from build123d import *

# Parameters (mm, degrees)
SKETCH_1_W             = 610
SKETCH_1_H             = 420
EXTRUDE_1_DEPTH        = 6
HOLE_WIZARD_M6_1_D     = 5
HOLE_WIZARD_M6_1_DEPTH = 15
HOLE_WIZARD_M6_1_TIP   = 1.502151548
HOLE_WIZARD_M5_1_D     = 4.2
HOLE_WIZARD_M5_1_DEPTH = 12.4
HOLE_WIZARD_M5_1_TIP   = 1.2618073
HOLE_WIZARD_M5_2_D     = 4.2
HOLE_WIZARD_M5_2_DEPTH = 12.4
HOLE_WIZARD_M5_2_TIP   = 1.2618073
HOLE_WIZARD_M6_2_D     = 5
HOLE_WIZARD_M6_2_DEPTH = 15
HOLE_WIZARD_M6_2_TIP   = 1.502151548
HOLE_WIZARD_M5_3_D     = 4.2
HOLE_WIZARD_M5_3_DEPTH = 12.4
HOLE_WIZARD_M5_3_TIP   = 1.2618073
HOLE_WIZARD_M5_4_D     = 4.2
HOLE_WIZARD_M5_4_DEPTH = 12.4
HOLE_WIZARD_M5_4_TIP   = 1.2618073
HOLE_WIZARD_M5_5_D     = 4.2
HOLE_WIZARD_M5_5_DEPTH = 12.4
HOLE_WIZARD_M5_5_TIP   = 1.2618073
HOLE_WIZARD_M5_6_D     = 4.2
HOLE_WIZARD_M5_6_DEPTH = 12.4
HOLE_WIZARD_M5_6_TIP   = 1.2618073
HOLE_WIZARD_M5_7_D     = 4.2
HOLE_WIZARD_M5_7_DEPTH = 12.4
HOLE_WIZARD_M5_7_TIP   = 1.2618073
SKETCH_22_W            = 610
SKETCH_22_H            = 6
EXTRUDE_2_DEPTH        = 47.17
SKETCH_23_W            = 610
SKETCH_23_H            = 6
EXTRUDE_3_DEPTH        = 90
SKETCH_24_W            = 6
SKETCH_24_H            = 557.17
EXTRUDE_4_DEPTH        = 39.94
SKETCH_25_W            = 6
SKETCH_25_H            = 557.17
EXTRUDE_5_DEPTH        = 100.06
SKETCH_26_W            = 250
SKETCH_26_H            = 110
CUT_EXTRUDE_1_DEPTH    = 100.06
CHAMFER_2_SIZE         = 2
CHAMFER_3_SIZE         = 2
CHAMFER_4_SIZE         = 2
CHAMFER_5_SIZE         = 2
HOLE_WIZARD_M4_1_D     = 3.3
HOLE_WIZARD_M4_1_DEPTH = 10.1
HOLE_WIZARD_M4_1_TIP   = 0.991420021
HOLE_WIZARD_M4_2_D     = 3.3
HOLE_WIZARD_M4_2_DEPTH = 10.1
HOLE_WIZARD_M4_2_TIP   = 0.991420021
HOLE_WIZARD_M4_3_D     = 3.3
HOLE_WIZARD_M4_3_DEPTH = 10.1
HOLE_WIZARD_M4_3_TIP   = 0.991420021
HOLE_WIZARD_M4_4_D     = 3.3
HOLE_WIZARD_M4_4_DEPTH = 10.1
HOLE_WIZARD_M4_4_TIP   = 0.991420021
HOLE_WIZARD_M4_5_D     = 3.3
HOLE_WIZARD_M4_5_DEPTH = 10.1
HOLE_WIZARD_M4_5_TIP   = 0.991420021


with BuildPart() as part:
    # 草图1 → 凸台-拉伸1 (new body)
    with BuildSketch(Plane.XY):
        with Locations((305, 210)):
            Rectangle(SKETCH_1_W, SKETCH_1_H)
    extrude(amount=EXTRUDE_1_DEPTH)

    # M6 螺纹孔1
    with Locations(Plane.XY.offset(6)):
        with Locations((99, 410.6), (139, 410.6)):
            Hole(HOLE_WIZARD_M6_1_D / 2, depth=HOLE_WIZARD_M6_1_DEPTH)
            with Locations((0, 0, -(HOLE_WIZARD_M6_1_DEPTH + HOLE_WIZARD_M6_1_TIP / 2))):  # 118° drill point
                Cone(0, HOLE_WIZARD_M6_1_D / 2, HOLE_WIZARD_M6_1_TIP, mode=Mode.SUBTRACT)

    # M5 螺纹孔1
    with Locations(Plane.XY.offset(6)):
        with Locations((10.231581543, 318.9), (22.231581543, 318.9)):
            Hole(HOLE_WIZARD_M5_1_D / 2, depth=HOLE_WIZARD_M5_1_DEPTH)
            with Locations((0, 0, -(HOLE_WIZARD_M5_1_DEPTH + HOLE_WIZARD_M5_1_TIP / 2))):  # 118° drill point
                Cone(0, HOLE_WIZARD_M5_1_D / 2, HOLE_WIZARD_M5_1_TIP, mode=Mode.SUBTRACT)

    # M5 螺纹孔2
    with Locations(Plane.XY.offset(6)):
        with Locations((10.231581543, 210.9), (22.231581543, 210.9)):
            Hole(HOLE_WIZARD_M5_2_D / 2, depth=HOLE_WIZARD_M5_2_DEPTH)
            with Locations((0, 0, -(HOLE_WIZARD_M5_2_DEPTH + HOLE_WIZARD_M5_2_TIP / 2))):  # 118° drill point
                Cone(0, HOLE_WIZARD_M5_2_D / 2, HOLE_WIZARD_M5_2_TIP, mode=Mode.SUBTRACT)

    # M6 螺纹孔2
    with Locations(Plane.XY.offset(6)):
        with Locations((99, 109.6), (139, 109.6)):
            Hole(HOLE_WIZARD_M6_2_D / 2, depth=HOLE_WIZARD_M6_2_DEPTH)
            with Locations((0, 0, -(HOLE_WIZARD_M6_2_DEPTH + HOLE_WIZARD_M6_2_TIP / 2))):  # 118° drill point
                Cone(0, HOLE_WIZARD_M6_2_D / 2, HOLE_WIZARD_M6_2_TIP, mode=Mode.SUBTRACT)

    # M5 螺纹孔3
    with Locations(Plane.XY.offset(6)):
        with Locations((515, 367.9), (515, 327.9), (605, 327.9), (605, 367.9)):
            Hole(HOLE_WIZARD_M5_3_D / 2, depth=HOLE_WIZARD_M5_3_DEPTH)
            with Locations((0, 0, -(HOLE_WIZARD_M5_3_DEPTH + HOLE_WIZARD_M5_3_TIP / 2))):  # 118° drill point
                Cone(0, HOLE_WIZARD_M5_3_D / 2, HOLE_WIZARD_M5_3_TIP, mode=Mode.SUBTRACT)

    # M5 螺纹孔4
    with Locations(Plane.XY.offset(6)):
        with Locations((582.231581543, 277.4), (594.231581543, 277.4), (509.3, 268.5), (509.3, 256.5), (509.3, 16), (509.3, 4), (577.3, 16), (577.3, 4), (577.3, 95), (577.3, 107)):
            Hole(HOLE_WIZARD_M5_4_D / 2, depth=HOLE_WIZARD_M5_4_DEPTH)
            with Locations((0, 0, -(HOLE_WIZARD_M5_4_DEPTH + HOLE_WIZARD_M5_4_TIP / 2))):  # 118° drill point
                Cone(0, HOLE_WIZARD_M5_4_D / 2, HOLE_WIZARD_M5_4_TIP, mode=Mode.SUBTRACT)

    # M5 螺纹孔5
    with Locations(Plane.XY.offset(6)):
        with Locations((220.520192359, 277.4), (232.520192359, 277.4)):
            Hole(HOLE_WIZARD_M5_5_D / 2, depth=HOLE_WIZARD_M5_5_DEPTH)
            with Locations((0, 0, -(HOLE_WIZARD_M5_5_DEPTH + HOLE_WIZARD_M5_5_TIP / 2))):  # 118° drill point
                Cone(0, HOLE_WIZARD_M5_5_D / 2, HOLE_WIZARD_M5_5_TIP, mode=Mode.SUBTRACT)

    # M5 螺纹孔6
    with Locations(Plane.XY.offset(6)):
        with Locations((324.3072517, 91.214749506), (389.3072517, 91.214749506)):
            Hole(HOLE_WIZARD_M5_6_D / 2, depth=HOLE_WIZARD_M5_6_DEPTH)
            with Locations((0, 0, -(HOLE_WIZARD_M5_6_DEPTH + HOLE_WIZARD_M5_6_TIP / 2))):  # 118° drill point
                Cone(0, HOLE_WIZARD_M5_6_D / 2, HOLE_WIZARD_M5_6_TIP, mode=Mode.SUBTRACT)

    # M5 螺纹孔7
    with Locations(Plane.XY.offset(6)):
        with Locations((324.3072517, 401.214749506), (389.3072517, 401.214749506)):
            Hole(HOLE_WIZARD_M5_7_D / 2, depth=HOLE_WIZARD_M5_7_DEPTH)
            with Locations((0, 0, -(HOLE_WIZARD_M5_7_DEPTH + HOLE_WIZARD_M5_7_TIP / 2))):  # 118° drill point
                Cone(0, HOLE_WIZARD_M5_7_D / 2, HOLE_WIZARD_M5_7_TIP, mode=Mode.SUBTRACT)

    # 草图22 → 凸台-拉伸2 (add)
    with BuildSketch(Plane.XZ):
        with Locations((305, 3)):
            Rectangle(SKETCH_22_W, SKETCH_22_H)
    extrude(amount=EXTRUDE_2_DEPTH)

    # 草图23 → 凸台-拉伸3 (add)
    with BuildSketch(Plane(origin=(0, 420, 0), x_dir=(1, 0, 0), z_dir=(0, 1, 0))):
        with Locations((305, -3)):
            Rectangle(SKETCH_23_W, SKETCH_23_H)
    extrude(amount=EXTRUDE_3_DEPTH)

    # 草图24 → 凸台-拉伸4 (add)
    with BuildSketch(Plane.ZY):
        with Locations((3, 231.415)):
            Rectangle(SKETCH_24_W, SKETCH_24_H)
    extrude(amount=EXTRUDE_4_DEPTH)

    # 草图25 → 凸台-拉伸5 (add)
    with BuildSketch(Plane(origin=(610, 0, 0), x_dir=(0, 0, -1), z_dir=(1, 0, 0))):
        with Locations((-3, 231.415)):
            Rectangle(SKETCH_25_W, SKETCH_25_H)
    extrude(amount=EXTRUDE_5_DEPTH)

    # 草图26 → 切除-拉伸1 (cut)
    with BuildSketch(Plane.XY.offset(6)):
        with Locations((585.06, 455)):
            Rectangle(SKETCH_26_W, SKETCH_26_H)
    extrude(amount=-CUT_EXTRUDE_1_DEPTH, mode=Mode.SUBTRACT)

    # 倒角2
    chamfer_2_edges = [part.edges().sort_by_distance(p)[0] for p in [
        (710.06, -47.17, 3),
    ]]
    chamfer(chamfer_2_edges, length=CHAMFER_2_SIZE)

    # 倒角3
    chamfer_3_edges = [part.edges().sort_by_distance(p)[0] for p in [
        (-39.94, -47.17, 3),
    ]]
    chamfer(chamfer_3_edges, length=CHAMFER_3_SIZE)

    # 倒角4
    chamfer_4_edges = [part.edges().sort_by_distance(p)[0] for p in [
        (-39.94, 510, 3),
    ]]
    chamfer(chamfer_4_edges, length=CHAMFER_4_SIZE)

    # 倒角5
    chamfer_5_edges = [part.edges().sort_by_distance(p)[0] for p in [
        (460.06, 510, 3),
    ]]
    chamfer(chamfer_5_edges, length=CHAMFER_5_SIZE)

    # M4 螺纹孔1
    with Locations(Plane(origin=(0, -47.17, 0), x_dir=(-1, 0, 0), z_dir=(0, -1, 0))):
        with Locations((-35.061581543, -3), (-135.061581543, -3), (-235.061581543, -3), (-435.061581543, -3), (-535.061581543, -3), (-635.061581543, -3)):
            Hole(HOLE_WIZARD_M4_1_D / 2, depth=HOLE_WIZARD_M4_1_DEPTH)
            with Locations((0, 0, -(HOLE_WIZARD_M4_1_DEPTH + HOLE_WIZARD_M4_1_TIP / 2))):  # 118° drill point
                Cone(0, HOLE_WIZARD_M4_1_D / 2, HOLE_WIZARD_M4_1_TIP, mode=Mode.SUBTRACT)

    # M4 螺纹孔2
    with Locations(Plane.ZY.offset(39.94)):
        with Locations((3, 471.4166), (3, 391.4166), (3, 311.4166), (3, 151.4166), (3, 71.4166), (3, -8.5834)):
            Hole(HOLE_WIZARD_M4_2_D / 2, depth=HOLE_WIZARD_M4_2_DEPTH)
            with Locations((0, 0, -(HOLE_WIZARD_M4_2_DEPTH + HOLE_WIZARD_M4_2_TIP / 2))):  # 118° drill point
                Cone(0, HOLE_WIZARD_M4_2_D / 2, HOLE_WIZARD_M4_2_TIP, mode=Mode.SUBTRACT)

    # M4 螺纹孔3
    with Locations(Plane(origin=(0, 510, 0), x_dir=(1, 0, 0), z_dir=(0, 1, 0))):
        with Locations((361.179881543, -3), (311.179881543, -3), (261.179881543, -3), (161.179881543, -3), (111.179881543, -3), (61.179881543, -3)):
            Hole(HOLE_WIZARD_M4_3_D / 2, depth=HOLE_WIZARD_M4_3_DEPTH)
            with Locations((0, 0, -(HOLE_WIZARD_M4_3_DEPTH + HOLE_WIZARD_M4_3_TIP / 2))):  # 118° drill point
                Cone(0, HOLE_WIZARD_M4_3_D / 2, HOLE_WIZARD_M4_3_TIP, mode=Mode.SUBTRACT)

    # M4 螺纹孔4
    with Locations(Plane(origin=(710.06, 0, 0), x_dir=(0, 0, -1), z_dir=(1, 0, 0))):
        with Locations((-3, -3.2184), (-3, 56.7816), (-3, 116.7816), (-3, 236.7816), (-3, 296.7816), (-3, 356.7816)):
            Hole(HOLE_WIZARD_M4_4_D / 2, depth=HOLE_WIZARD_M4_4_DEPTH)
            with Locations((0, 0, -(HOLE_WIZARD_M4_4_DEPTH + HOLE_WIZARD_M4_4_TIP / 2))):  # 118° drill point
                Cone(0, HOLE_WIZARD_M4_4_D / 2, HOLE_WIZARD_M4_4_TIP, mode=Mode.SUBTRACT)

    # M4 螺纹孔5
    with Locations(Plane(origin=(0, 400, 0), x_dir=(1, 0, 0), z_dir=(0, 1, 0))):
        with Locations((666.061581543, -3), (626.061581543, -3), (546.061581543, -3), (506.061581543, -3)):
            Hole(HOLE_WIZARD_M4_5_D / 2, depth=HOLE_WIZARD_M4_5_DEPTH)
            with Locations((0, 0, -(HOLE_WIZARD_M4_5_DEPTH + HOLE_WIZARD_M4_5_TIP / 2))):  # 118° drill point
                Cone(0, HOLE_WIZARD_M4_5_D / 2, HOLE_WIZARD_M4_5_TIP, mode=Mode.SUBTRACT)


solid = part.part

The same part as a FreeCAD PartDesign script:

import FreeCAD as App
import Part
import Sketcher

V = App.Vector
Q = App.Units.Quantity


def edges_at(feature, points):
    """Names of the edges that pass closest to the given points."""
    edges = feature.Shape.Edges
    near = lambda p: min(range(len(edges)), key=lambda i: edges[i].distToShape(Part.Vertex(*p))[0])
    return sorted({f"Edge{near(p) + 1}" for p in points})

doc = App.newDocument("Part")
params = doc.addObject("Spreadsheet::Sheet", "Params")
for row, (alias, value) in enumerate([
    ("sketch1_width", "610 mm"),
    ("sketch1_height", "420 mm"),
    ("pad1_length", "6 mm"),
    ("sketch2_diameter", "5 mm"),
    ("hole_diameter", "5 mm"),
    ("hole_depth", "15 mm"),
    ("sketch3_diameter", "4.2 mm"),
    ("hole2_diameter", "4.2 mm"),
    ("hole2_depth", "12.4 mm"),
    ("sketch4_diameter", "4.2 mm"),
    ("hole3_diameter", "4.2 mm"),
    ("hole3_depth", "12.4 mm"),
    ("sketch5_diameter", "5 mm"),
    ("hole4_diameter", "5 mm"),
    ("hole4_depth", "15 mm"),
    ("sketch6_diameter", "4.2 mm"),
    ("hole5_diameter", "4.2 mm"),
    ("hole5_depth", "12.4 mm"),
    ("sketch7_diameter", "4.2 mm"),
    ("hole6_diameter", "4.2 mm"),
    ("hole6_depth", "12.4 mm"),
    ("sketch8_diameter", "4.2 mm"),
    ("hole7_diameter", "4.2 mm"),
    ("hole7_depth", "12.4 mm"),
    ("sketch9_diameter", "4.2 mm"),
    ("hole8_diameter", "4.2 mm"),
    ("hole8_depth", "12.4 mm"),
    ("sketch10_diameter", "4.2 mm"),
    ("hole9_diameter", "4.2 mm"),
    ("hole9_depth", "12.4 mm"),
    ("sketch11_width", "610 mm"),
    ("sketch11_height", "6 mm"),
    ("pad2_length", "47.17 mm"),
    ("sketch12_width", "610 mm"),
    ("sketch12_height", "6 mm"),
    ("pad3_length", "90 mm"),
    ("sketch13_height", "6 mm"),
    ("sketch13_width", "557.17 mm"),
    ("pad4_length", "39.94 mm"),
    ("sketch14_height", "6 mm"),
    ("sketch14_width", "557.17 mm"),
    ("pad5_length", "100.06 mm"),
    ("sketch15_width", "250 mm"),
    ("sketch15_height", "110 mm"),
    ("pocket1_length", "100.06 mm"),
    ("chamfer_size", "2 mm"),
    ("chamfer2_size", "2 mm"),
    ("chamfer3_size", "2 mm"),
    ("chamfer4_size", "2 mm"),
    ("sketch16_diameter", "3.3 mm"),
    ("hole10_diameter", "3.3 mm"),
    ("hole10_depth", "10.1 mm"),
    ("sketch17_diameter", "3.3 mm"),
    ("hole11_diameter", "3.3 mm"),
    ("hole11_depth", "10.1 mm"),
    ("sketch18_diameter", "3.3 mm"),
    ("hole12_diameter", "3.3 mm"),
    ("hole12_depth", "10.1 mm"),
    ("sketch19_diameter", "3.3 mm"),
    ("hole13_diameter", "3.3 mm"),
    ("hole13_depth", "10.1 mm"),
    ("sketch20_diameter", "3.3 mm"),
    ("hole14_diameter", "3.3 mm"),
    ("hole14_depth", "10.1 mm"),
], start=1):
    params.set(f"A{row}", alias)
    params.set(f"B{row}", "=" + value)
    params.setAlias(f"B{row}", alias)

body = doc.addObject("PartDesign::Body", "Body")

# Sketch on XY plane
sketch1 = body.newObject("Sketcher::SketchObject", "Sketch")
sketch1.AttachmentSupport = (doc.getObject("XY_Plane"), [""])
sketch1.MapMode = "FlatFace"
sketch1.addGeometry([
    Part.LineSegment(V(0, 420, 0), V(0, 0, 0)),
    Part.LineSegment(V(0, 0, 0), V(610, 0, 0)),
    Part.LineSegment(V(610, 0, 0), V(610, 420, 0)),
    Part.LineSegment(V(610, 420, 0), V(0, 420, 0)),
], False)
sketch1.addConstraint([
    Sketcher.Constraint("Coincident", 0, 2, 1, 1),
    Sketcher.Constraint("Coincident", 1, 2, 2, 1),
    Sketcher.Constraint("Coincident", 2, 2, 3, 1),
    Sketcher.Constraint("Coincident", 3, 2, 0, 1),
    Sketcher.Constraint("Vertical", 0),
    Sketcher.Constraint("Horizontal", 1),
    Sketcher.Constraint("Vertical", 2),
    Sketcher.Constraint("Horizontal", 3),
    Sketcher.Constraint("Coincident", 0, 2, -1, 1),
    Sketcher.Constraint("DistanceX", 1, 1, 1, 2, Q("610 mm")),
    Sketcher.Constraint("DistanceY", 0, 2, 0, 1, Q("420 mm")),
])
sketch1.setExpression("Constraints[9]", "Params.sketch1_width")
sketch1.setExpression("Constraints[10]", "Params.sketch1_height")
pad1 = body.newObject("PartDesign::Pad", "Pad")
pad1.Profile = sketch1
pad1.setExpression("Length", "Params.pad1_length")

# Sketch on XY plane
sketch2 = body.newObject("Sketcher::SketchObject", "Sketch001")
sketch2.AttachmentSupport = (doc.getObject("XY_Plane"), [""])
sketch2.MapMode = "FlatFace"
sketch2.AttachmentOffset = App.Placement(V(0, 0, 6), App.Rotation())
sketch2.addGeometry([
    Part.Circle(V(99, 410.6, 0), V(0, 0, 1), 2.5),
    Part.Circle(V(139, 410.6, 0), V(0, 0, 1), 2.5),
], False)
sketch2.addConstraint([
    Sketcher.Constraint("Equal", 0, 1),
    Sketcher.Constraint("Horizontal", 0, 3, 1, 3),
    Sketcher.Constraint("Diameter", 0, Q("5 mm")),
    Sketcher.Constraint("DistanceX", -1, 1, 0, 3, Q("99 mm")),
    Sketcher.Constraint("DistanceX", -1, 1, 1, 3, Q("139 mm")),
    Sketcher.Constraint("DistanceY", -1, 1, 0, 3, Q("410.6 mm")),
])
sketch2.setExpression("Constraints[2]", "Params.sketch2_diameter")
doc.recompute()
hole = body.newObject("PartDesign::Hole", "Hole")
hole.Profile = sketch2
hole.ThreadType = "None"
hole.setExpression("Diameter", "Params.hole_diameter")
hole.DepthType = "Dimension"
hole.setExpression("Depth", "Params.hole_depth")
hole.DrillPoint = "Angled"
hole.DrillPointAngle = 118

# Sketch on XY plane
sketch3 = body.newObject("Sketcher::SketchObject", "Sketch002")
sketch3.AttachmentSupport = (doc.getObject("XY_Plane"), [""])
sketch3.MapMode = "FlatFace"
sketch3.AttachmentOffset = App.Placement(V(0, 0, 6), App.Rotation())
sketch3.addGeometry([
    Part.Circle(V(10.2, 318.9, 0), V(0, 0, 1), 2.1),
    Part.Circle(V(22.2, 318.9, 0), V(0, 0, 1), 2.1),
], False)
sketch3.addConstraint([
    Sketcher.Constraint("Equal", 0, 1),
    Sketcher.Constraint("Horizontal", 0, 3, 1, 3),
    Sketcher.Constraint("Diameter", 0, Q("4.2 mm")),
    Sketcher.Constraint("DistanceX", 0, 3, 1, 3, Q("12 mm")),
    Sketcher.Constraint("DistanceY", -1, 1, 0, 3, Q("318.9 mm")),
    Sketcher.Constraint("DistanceX", -1, 1, 0, 3, Q("10.231582 mm")),
])
sketch3.setExpression("Constraints[2]", "Params.sketch3_diameter")
doc.recompute()
hole2 = body.newObject("PartDesign::Hole", "Hole001")
hole2.Profile = sketch3
hole2.ThreadType = "None"
hole2.setExpression("Diameter", "Params.hole2_diameter")
hole2.DepthType = "Dimension"
hole2.setExpression("Depth", "Params.hole2_depth")
hole2.DrillPoint = "Angled"
hole2.DrillPointAngle = 118

# Sketch on XY plane
sketch4 = body.newObject("Sketcher::SketchObject", "Sketch003")
sketch4.AttachmentSupport = (doc.getObject("XY_Plane"), [""])
sketch4.MapMode = "FlatFace"
sketch4.AttachmentOffset = App.Placement(V(0, 0, 6), App.Rotation())
sketch4.addGeometry([
    Part.Circle(V(10.2, 210.9, 0), V(0, 0, 1), 2.1),
    Part.Circle(V(22.2, 210.9, 0), V(0, 0, 1), 2.1),
], False)
sketch4.addConstraint([
    Sketcher.Constraint("Equal", 0, 1),
    Sketcher.Constraint("Horizontal", 0, 3, 1, 3),
    Sketcher.Constraint("Diameter", 0, Q("4.2 mm")),
    Sketcher.Constraint("DistanceX", 0, 3, 1, 3, Q("12 mm")),
    Sketcher.Constraint("DistanceY", -1, 1, 0, 3, Q("210.9 mm")),
    Sketcher.Constraint("DistanceX", -1, 1, 0, 3, Q("10.231582 mm")),
])
sketch4.setExpression("Constraints[2]", "Params.sketch4_diameter")
doc.recompute()
hole3 = body.newObject("PartDesign::Hole", "Hole002")
hole3.Profile = sketch4
hole3.ThreadType = "None"
hole3.setExpression("Diameter", "Params.hole3_diameter")
hole3.DepthType = "Dimension"
hole3.setExpression("Depth", "Params.hole3_depth")
hole3.DrillPoint = "Angled"
hole3.DrillPointAngle = 118

# Sketch on XY plane
sketch5 = body.newObject("Sketcher::SketchObject", "Sketch004")
sketch5.AttachmentSupport = (doc.getObject("XY_Plane"), [""])
sketch5.MapMode = "FlatFace"
sketch5.AttachmentOffset = App.Placement(V(0, 0, 6), App.Rotation())
sketch5.addGeometry([
    Part.Circle(V(99, 109.6, 0), V(0, 0, 1), 2.5),
    Part.Circle(V(139, 109.6, 0), V(0, 0, 1), 2.5),
], False)
sketch5.addConstraint([
    Sketcher.Constraint("Equal", 0, 1),
    Sketcher.Constraint("Horizontal", 0, 3, 1, 3),
    Sketcher.Constraint("Diameter", 0, Q("5 mm")),
    Sketcher.Constraint("DistanceX", -1, 1, 0, 3, Q("99 mm")),
    Sketcher.Constraint("DistanceX", -1, 1, 1, 3, Q("139 mm")),
    Sketcher.Constraint("DistanceY", -1, 1, 0, 3, Q("109.6 mm")),
])
sketch5.setExpression("Constraints[2]", "Params.sketch5_diameter")
doc.recompute()
hole4 = body.newObject("PartDesign::Hole", "Hole003")
hole4.Profile = sketch5
hole4.ThreadType = "None"
hole4.setExpression("Diameter", "Params.hole4_diameter")
hole4.DepthType = "Dimension"
hole4.setExpression("Depth", "Params.hole4_depth")
hole4.DrillPoint = "Angled"
hole4.DrillPointAngle = 118

# Sketch on XY plane
sketch6 = body.newObject("Sketcher::SketchObject", "Sketch005")
sketch6.AttachmentSupport = (doc.getObject("XY_Plane"), [""])
sketch6.MapMode = "FlatFace"
sketch6.AttachmentOffset = App.Placement(V(0, 0, 6), App.Rotation())
sketch6.addGeometry([
    Part.Circle(V(515, 367.9, 0), V(0, 0, 1), 2.1),
    Part.Circle(V(515, 327.9, 0), V(0, 0, 1), 2.1),
    Part.Circle(V(605, 327.9, 0), V(0, 0, 1), 2.1),
    Part.Circle(V(605, 367.9, 0), V(0, 0, 1), 2.1),
], False)
sketch6.addConstraint([
    Sketcher.Constraint("Equal", 0, 1),
    Sketcher.Constraint("Equal", 1, 2),
    Sketcher.Constraint("Equal", 2, 3),
    Sketcher.Constraint("Horizontal", 1, 3, 2, 3),
    Sketcher.Constraint("Horizontal", 0, 3, 3, 3),
    Sketcher.Constraint("Vertical", 0, 3, 1, 3),
    Sketcher.Constraint("Vertical", 2, 3, 3, 3),
    Sketcher.Constraint("Diameter", 0, Q("4.2 mm")),
    Sketcher.Constraint("DistanceX", -1, 1, 0, 3, Q("515 mm")),
    Sketcher.Constraint("DistanceX", -1, 1, 2, 3, Q("605 mm")),
    Sketcher.Constraint("DistanceY", 1, 3, 0, 3, Q("40 mm")),
    Sketcher.Constraint("DistanceY", -1, 1, 0, 3, Q("367.9 mm")),
])
sketch6.setExpression("Constraints[7]", "Params.sketch6_diameter")
doc.recompute()
hole5 = body.newObject("PartDesign::Hole", "Hole004")
hole5.Profile = sketch6
hole5.ThreadType = "None"
hole5.setExpression("Diameter", "Params.hole5_diameter")
hole5.DepthType = "Dimension"
hole5.setExpression("Depth", "Params.hole5_depth")
hole5.DrillPoint = "Angled"
hole5.DrillPointAngle = 118

# Sketch on XY plane
sketch7 = body.newObject("Sketcher::SketchObject", "Sketch006")
sketch7.AttachmentSupport = (doc.getObject("XY_Plane"), [""])
sketch7.MapMode = "FlatFace"
sketch7.AttachmentOffset = App.Placement(V(0, 0, 6), App.Rotation())
sketch7.addGeometry([
    Part.Circle(V(582.2, 277.4, 0), V(0, 0, 1), 2.1),  # 0
    Part.Circle(V(594.2, 277.4, 0), V(0, 0, 1), 2.1),  # 1
    Part.Circle(V(509.3, 268.5, 0), V(0, 0, 1), 2.1),  # 2
    Part.Circle(V(509.3, 256.5, 0), V(0, 0, 1), 2.1),  # 3
    Part.Circle(V(509.3, 16, 0), V(0, 0, 1), 2.1),  # 4
    Part.Circle(V(509.3, 4, 0), V(0, 0, 1), 2.1),  # 5
    Part.Circle(V(577.3, 16, 0), V(0, 0, 1), 2.1),  # 6
    Part.Circle(V(577.3, 4, 0), V(0, 0, 1), 2.1),  # 7
    Part.Circle(V(577.3, 95, 0), V(0, 0, 1), 2.1),  # 8
    Part.Circle(V(577.3, 107, 0), V(0, 0, 1), 2.1),  # 9
], False)
sketch7.addConstraint([
    Sketcher.Constraint("Equal", 0, 1),
    Sketcher.Constraint("Equal", 1, 2),
    Sketcher.Constraint("Equal", 2, 3),
    Sketcher.Constraint("Equal", 3, 4),
    Sketcher.Constraint("Equal", 4, 5),
    Sketcher.Constraint("Equal", 5, 6),
    Sketcher.Constraint("Equal", 6, 7),
    Sketcher.Constraint("Equal", 7, 8),
    Sketcher.Constraint("Equal", 8, 9),
    Sketcher.Constraint("Horizontal", 0, 3, 1, 3),
    Sketcher.Constraint("Horizontal", 4, 3, 6, 3),
    Sketcher.Constraint("Horizontal", 5, 3, 7, 3),
    Sketcher.Constraint("Vertical", 2, 3, 3, 3),
    Sketcher.Constraint("Vertical", 3, 3, 4, 3),
    Sketcher.Constraint("Vertical", 4, 3, 5, 3),
    Sketcher.Constraint("Vertical", 6, 3, 7, 3),
    Sketcher.Constraint("Vertical", 7, 3, 8, 3),
    Sketcher.Constraint("Vertical", 8, 3, 9, 3),
    Sketcher.Constraint("Diameter", 0, Q("4.2 mm")),
    Sketcher.Constraint("DistanceY", -1, 1, 4, 3, Q("16 mm")),
    Sketcher.Constraint("DistanceY", -1, 1, 5, 3, Q("4 mm")),
    Sketcher.Constraint("DistanceY", -1, 1, 8, 3, Q("95 mm")),
    Sketcher.Constraint("DistanceY", -1, 1, 9, 3, Q("107 mm")),
    Sketcher.Constraint("DistanceX", 0, 3, 1, 3, Q("12 mm")),
    Sketcher.Constraint("DistanceY", 3, 3, 2, 3, Q("12 mm")),
    Sketcher.Constraint("DistanceX", 4, 3, 6, 3, Q("68 mm")),
    Sketcher.Constraint("DistanceY", -1, 1, 0, 3, Q("277.4 mm")),
    Sketcher.Constraint("DistanceX", -1, 1, 2, 3, Q("509.3 mm")),
    Sketcher.Constraint("DistanceY", -1, 1, 2, 3, Q("268.5 mm")),
    Sketcher.Constraint("DistanceX", -1, 1, 0, 3, Q("582.231582 mm")),
])
sketch7.setExpression("Constraints[18]", "Params.sketch7_diameter")
doc.recompute()
hole6 = body.newObject("PartDesign::Hole", "Hole005")
hole6.Profile = sketch7
hole6.ThreadType = "None"
hole6.setExpression("Diameter", "Params.hole6_diameter")
hole6.DepthType = "Dimension"
hole6.setExpression("Depth", "Params.hole6_depth")
hole6.DrillPoint = "Angled"
hole6.DrillPointAngle = 118

# Sketch on XY plane
sketch8 = body.newObject("Sketcher::SketchObject", "Sketch007")
sketch8.AttachmentSupport = (doc.getObject("XY_Plane"), [""])
sketch8.MapMode = "FlatFace"
sketch8.AttachmentOffset = App.Placement(V(0, 0, 6), App.Rotation())
sketch8.addGeometry([
    Part.Circle(V(220.5, 277.4, 0), V(0, 0, 1), 2.1),
    Part.Circle(V(232.5, 277.4, 0), V(0, 0, 1), 2.1),
], False)
sketch8.addConstraint([
    Sketcher.Constraint("Equal", 0, 1),
    Sketcher.Constraint("Horizontal", 0, 3, 1, 3),
    Sketcher.Constraint("Diameter", 0, Q("4.2 mm")),
    Sketcher.Constraint("DistanceX", 0, 3, 1, 3, Q("12 mm")),
    Sketcher.Constraint("DistanceY", -1, 1, 0, 3, Q("277.4 mm")),
    Sketcher.Constraint("DistanceX", -1, 1, 0, 3, Q("220.520192 mm")),
])
sketch8.setExpression("Constraints[2]", "Params.sketch8_diameter")
doc.recompute()
hole7 = body.newObject("PartDesign::Hole", "Hole006")
hole7.Profile = sketch8
hole7.ThreadType = "None"
hole7.setExpression("Diameter", "Params.hole7_diameter")
hole7.DepthType = "Dimension"
hole7.setExpression("Depth", "Params.hole7_depth")
hole7.DrillPoint = "Angled"
hole7.DrillPointAngle = 118

# Sketch on XY plane
sketch9 = body.newObject("Sketcher::SketchObject", "Sketch008")
sketch9.AttachmentSupport = (doc.getObject("XY_Plane"), [""])
sketch9.MapMode = "FlatFace"
sketch9.AttachmentOffset = App.Placement(V(0, 0, 6), App.Rotation())
sketch9.addGeometry([
    Part.Circle(V(324.3, 91.2, 0), V(0, 0, 1), 2.1),
    Part.Circle(V(389.3, 91.2, 0), V(0, 0, 1), 2.1),
], False)
sketch9.addConstraint([
    Sketcher.Constraint("Equal", 0, 1),
    Sketcher.Constraint("Horizontal", 0, 3, 1, 3),
    Sketcher.Constraint("Diameter", 0, Q("4.2 mm")),
    Sketcher.Constraint("DistanceX", 0, 3, 1, 3, Q("65 mm")),
    Sketcher.Constraint("DistanceX", -1, 1, 0, 3, Q("324.307252 mm")),
    Sketcher.Constraint("DistanceY", -1, 1, 0, 3, Q("91.21475 mm")),
])
sketch9.setExpression("Constraints[2]", "Params.sketch9_diameter")
doc.recompute()
hole8 = body.newObject("PartDesign::Hole", "Hole007")
hole8.Profile = sketch9
hole8.ThreadType = "None"
hole8.setExpression("Diameter", "Params.hole8_diameter")
hole8.DepthType = "Dimension"
hole8.setExpression("Depth", "Params.hole8_depth")
hole8.DrillPoint = "Angled"
hole8.DrillPointAngle = 118

# Sketch on XY plane
sketch10 = body.newObject("Sketcher::SketchObject", "Sketch009")
sketch10.AttachmentSupport = (doc.getObject("XY_Plane"), [""])
sketch10.MapMode = "FlatFace"
sketch10.AttachmentOffset = App.Placement(V(0, 0, 6), App.Rotation())
sketch10.addGeometry([
    Part.Circle(V(324.3, 401.2, 0), V(0, 0, 1), 2.1),
    Part.Circle(V(389.3, 401.2, 0), V(0, 0, 1), 2.1),
], False)
sketch10.addConstraint([
    Sketcher.Constraint("Equal", 0, 1),
    Sketcher.Constraint("Horizontal", 0, 3, 1, 3),
    Sketcher.Constraint("Diameter", 0, Q("4.2 mm")),
    Sketcher.Constraint("DistanceX", 0, 3, 1, 3, Q("65 mm")),
    Sketcher.Constraint("DistanceX", -1, 1, 0, 3, Q("324.307252 mm")),
    Sketcher.Constraint("DistanceY", -1, 1, 0, 3, Q("401.21475 mm")),
])
sketch10.setExpression("Constraints[2]", "Params.sketch10_diameter")
doc.recompute()
hole9 = body.newObject("PartDesign::Hole", "Hole008")
hole9.Profile = sketch10
hole9.ThreadType = "None"
hole9.setExpression("Diameter", "Params.hole9_diameter")
hole9.DepthType = "Dimension"
hole9.setExpression("Depth", "Params.hole9_depth")
hole9.DrillPoint = "Angled"
hole9.DrillPointAngle = 118

# Sketch on XZ plane
sketch11 = body.newObject("Sketcher::SketchObject", "Sketch010")
sketch11.AttachmentSupport = (doc.getObject("XZ_Plane"), [""])
sketch11.MapMode = "FlatFace"
sketch11.addGeometry([
    Part.LineSegment(V(0, 6, 0), V(0, 0, 0)),
    Part.LineSegment(V(0, 0, 0), V(610, 0, 0)),
    Part.LineSegment(V(610, 0, 0), V(610, 6, 0)),
    Part.LineSegment(V(610, 6, 0), V(0, 6, 0)),
], False)
sketch11.addConstraint([
    Sketcher.Constraint("Coincident", 0, 2, 1, 1),
    Sketcher.Constraint("Coincident", 1, 2, 2, 1),
    Sketcher.Constraint("Coincident", 2, 2, 3, 1),
    Sketcher.Constraint("Coincident", 3, 2, 0, 1),
    Sketcher.Constraint("Vertical", 0),
    Sketcher.Constraint("Horizontal", 1),
    Sketcher.Constraint("Vertical", 2),
    Sketcher.Constraint("Horizontal", 3),
    Sketcher.Constraint("Coincident", 0, 2, -1, 1),
    Sketcher.Constraint("DistanceX", 1, 1, 1, 2, Q("610 mm")),
    Sketcher.Constraint("DistanceY", 0, 2, 0, 1, Q("6 mm")),
])
sketch11.setExpression("Constraints[9]", "Params.sketch11_width")
sketch11.setExpression("Constraints[10]", "Params.sketch11_height")
pad2 = body.newObject("PartDesign::Pad", "Pad001")
pad2.Profile = sketch11
pad2.setExpression("Length", "Params.pad2_length")

# Sketch on XZ plane
sketch12 = body.newObject("Sketcher::SketchObject", "Sketch011")
sketch12.AttachmentSupport = (doc.getObject("XZ_Plane"), [""])
sketch12.MapMode = "FlatFace"
sketch12.AttachmentOffset = App.Placement(V(0, 0, -420), App.Rotation())
sketch12.addGeometry([
    Part.LineSegment(V(0, 0, 0), V(0, 6, 0)),
    Part.LineSegment(V(0, 6, 0), V(610, 6, 0)),
    Part.LineSegment(V(610, 6, 0), V(610, 0, 0)),
    Part.LineSegment(V(610, 0, 0), V(0, 0, 0)),
], False)
sketch12.addConstraint([
    Sketcher.Constraint("Coincident", 0, 2, 1, 1),
    Sketcher.Constraint("Coincident", 1, 2, 2, 1),
    Sketcher.Constraint("Coincident", 2, 2, 3, 1),
    Sketcher.Constraint("Coincident", 3, 2, 0, 1),
    Sketcher.Constraint("Vertical", 0),
    Sketcher.Constraint("Horizontal", 1),
    Sketcher.Constraint("Vertical", 2),
    Sketcher.Constraint("Horizontal", 3),
    Sketcher.Constraint("Coincident", 3, 2, -1, 1),
    Sketcher.Constraint("DistanceX", 1, 1, 1, 2, Q("610 mm")),
    Sketcher.Constraint("DistanceY", 0, 1, 0, 2, Q("6 mm")),
])
sketch12.setExpression("Constraints[9]", "Params.sketch12_width")
sketch12.setExpression("Constraints[10]", "Params.sketch12_height")
pad3 = body.newObject("PartDesign::Pad", "Pad002")
pad3.Profile = sketch12
pad3.setExpression("Length", "Params.pad3_length")
pad3.Reversed = True

# Sketch on YZ plane
sketch13 = body.newObject("Sketcher::SketchObject", "Sketch012")
sketch13.AttachmentSupport = (doc.getObject("YZ_Plane"), [""])
sketch13.MapMode = "FlatFace"
sketch13.addGeometry([
    Part.LineSegment(V(510, 0, 0), V(-47, 0, 0)),
    Part.LineSegment(V(-47, 0, 0), V(-47, 6, 0)),
    Part.LineSegment(V(-47, 6, 0), V(510, 6, 0)),
    Part.LineSegment(V(510, 6, 0), V(510, 0, 0)),
], False)
sketch13.addConstraint([
    Sketcher.Constraint("Coincident", 0, 2, 1, 1),
    Sketcher.Constraint("Coincident", 1, 2, 2, 1),
    Sketcher.Constraint("Coincident", 2, 2, 3, 1),
    Sketcher.Constraint("Coincident", 3, 2, 0, 1),
    Sketcher.Constraint("Horizontal", 0),
    Sketcher.Constraint("Vertical", 1),
    Sketcher.Constraint("Horizontal", 2),
    Sketcher.Constraint("Vertical", 3),
    Sketcher.Constraint("PointOnObject", 0, 2, -1),
    Sketcher.Constraint("DistanceY", 1, 1, 1, 2, Q("6 mm")),
    Sketcher.Constraint("DistanceX", -1, 1, 2, 2, Q("510 mm")),
    Sketcher.Constraint("DistanceX", 0, 2, 0, 1, Q("557.17 mm")),
])
sketch13.setExpression("Constraints[9]", "Params.sketch13_height")
sketch13.setExpression("Constraints[11]", "Params.sketch13_width")
pad4 = body.newObject("PartDesign::Pad", "Pad003")
pad4.Profile = sketch13
pad4.setExpression("Length", "Params.pad4_length")
pad4.Reversed = True

# Sketch on YZ plane
sketch14 = body.newObject("Sketcher::SketchObject", "Sketch013")
sketch14.AttachmentSupport = (doc.getObject("YZ_Plane"), [""])
sketch14.MapMode = "FlatFace"
sketch14.AttachmentOffset = App.Placement(V(0, 0, 610), App.Rotation())
sketch14.addGeometry([
    Part.LineSegment(V(510, 6, 0), V(-47, 6, 0)),
    Part.LineSegment(V(-47, 6, 0), V(-47, 0, 0)),
    Part.LineSegment(V(-47, 0, 0), V(510, 0, 0)),
    Part.LineSegment(V(510, 0, 0), V(510, 6, 0)),
], False)
sketch14.addConstraint([
    Sketcher.Constraint("Coincident", 0, 2, 1, 1),
    Sketcher.Constraint("Coincident", 1, 2, 2, 1),
    Sketcher.Constraint("Coincident", 2, 2, 3, 1),
    Sketcher.Constraint("Coincident", 3, 2, 0, 1),
    Sketcher.Constraint("Horizontal", 0),
    Sketcher.Constraint("Vertical", 1),
    Sketcher.Constraint("Horizontal", 2),
    Sketcher.Constraint("Vertical", 3),
    Sketcher.Constraint("PointOnObject", 1, 2, -1),
    Sketcher.Constraint("DistanceY", 1, 2, 1, 1, Q("6 mm")),
    Sketcher.Constraint("DistanceX", -1, 1, 2, 2, Q("510 mm")),
    Sketcher.Constraint("DistanceX", 0, 2, 0, 1, Q("557.17 mm")),
])
sketch14.setExpression("Constraints[9]", "Params.sketch14_height")
sketch14.setExpression("Constraints[11]", "Params.sketch14_width")
pad5 = body.newObject("PartDesign::Pad", "Pad004")
pad5.Profile = sketch14
pad5.setExpression("Length", "Params.pad5_length")

# Sketch on XY plane
sketch15 = body.newObject("Sketcher::SketchObject", "Sketch014")
sketch15.AttachmentSupport = (doc.getObject("XY_Plane"), [""])
sketch15.MapMode = "FlatFace"
sketch15.AttachmentOffset = App.Placement(V(0, 0, 6), App.Rotation())
sketch15.addGeometry([
    Part.LineSegment(V(460, 510, 0), V(460, 400, 0)),
    Part.LineSegment(V(460, 400, 0), V(710, 400, 0)),
    Part.LineSegment(V(710, 400, 0), V(710, 510, 0)),
    Part.LineSegment(V(710, 510, 0), V(460, 510, 0)),
], False)
sketch15.addConstraint([
    Sketcher.Constraint("Coincident", 0, 2, 1, 1),
    Sketcher.Constraint("Coincident", 1, 2, 2, 1),
    Sketcher.Constraint("Coincident", 2, 2, 3, 1),
    Sketcher.Constraint("Coincident", 3, 2, 0, 1),
    Sketcher.Constraint("Vertical", 0),
    Sketcher.Constraint("Horizontal", 1),
    Sketcher.Constraint("Vertical", 2),
    Sketcher.Constraint("Horizontal", 3),
    Sketcher.Constraint("DistanceX", 1, 1, 1, 2, Q("250 mm")),
    Sketcher.Constraint("DistanceY", 0, 2, 0, 1, Q("110 mm")),
    Sketcher.Constraint("DistanceY", -1, 1, 0, 2, Q("400 mm")),
    Sketcher.Constraint("DistanceX", -1, 1, 0, 2, Q("460.06 mm")),
])
sketch15.setExpression("Constraints[8]", "Params.sketch15_width")
sketch15.setExpression("Constraints[9]", "Params.sketch15_height")
pocket1 = body.newObject("PartDesign::Pocket", "Pocket")
pocket1.Profile = sketch15
pocket1.setExpression("Length", "Params.pocket1_length")
doc.recompute()

chamfer = body.newObject("PartDesign::Chamfer", "Chamfer")
chamfer.Base = (pocket1, edges_at(pocket1, [(710.06, -47.17, 3)]))
chamfer.setExpression("Size", "Params.chamfer_size")
doc.recompute()

chamfer2 = body.newObject("PartDesign::Chamfer", "Chamfer001")
chamfer2.Base = (chamfer, edges_at(chamfer, [(-39.94, -47.17, 3)]))
chamfer2.setExpression("Size", "Params.chamfer2_size")
doc.recompute()

chamfer3 = body.newObject("PartDesign::Chamfer", "Chamfer002")
chamfer3.Base = (chamfer2, edges_at(chamfer2, [(-39.94, 510, 3)]))
chamfer3.setExpression("Size", "Params.chamfer3_size")
doc.recompute()

chamfer4 = body.newObject("PartDesign::Chamfer", "Chamfer003")
chamfer4.Base = (chamfer3, edges_at(chamfer3, [(460.06, 510, 3)]))
chamfer4.setExpression("Size", "Params.chamfer4_size")

# Sketch on XZ plane
sketch16 = body.newObject("Sketcher::SketchObject", "Sketch015")
sketch16.AttachmentSupport = (doc.getObject("XZ_Plane"), [""])
sketch16.MapMode = "FlatFace"
sketch16.AttachmentOffset = App.Placement(V(0, 0, 47.17), App.Rotation())
sketch16.addGeometry([
    Part.Circle(V(35.1, 3, 0), V(0, 0, 1), 1.6),  # 0
    Part.Circle(V(135.1, 3, 0), V(0, 0, 1), 1.6),  # 1
    Part.Circle(V(235.1, 3, 0), V(0, 0, 1), 1.6),  # 2
    Part.Circle(V(435.1, 3, 0), V(0, 0, 1), 1.6),  # 3
    Part.Circle(V(535.1, 3, 0), V(0, 0, 1), 1.6),  # 4
    Part.Circle(V(635.1, 3, 0), V(0, 0, 1), 1.6),  # 5
], False)
sketch16.addConstraint([
    Sketcher.Constraint("Equal", 0, 1),
    Sketcher.Constraint("Equal", 1, 2),
    Sketcher.Constraint("Equal", 2, 3),
    Sketcher.Constraint("Equal", 3, 4),
    Sketcher.Constraint("Equal", 4, 5),
    Sketcher.Constraint("Horizontal", 0, 3, 1, 3),
    Sketcher.Constraint("Horizontal", 1, 3, 2, 3),
    Sketcher.Constraint("Horizontal", 2, 3, 3, 3),
    Sketcher.Constraint("Horizontal", 3, 3, 4, 3),
    Sketcher.Constraint("Horizontal", 4, 3, 5, 3),
    Sketcher.Constraint("Diameter", 0, Q("3.3 mm")),
    Sketcher.Constraint("DistanceY", -1, 1, 0, 3, Q("3 mm")),
    Sketcher.Constraint("DistanceX", 0, 3, 1, 3, Q("100 mm")),
    Sketcher.Constraint("DistanceX", 1, 3, 2, 3, Q("100 mm")),
    Sketcher.Constraint("DistanceX", 2, 3, 3, 3, Q("200 mm")),
    Sketcher.Constraint("DistanceX", 3, 3, 4, 3, Q("100 mm")),
    Sketcher.Constraint("DistanceX", 4, 3, 5, 3, Q("100 mm")),
    Sketcher.Constraint("DistanceX", -1, 1, 0, 3, Q("35.061582 mm")),
])
sketch16.setExpression("Constraints[10]", "Params.sketch16_diameter")
doc.recompute()
hole10 = body.newObject("PartDesign::Hole", "Hole009")
hole10.Profile = sketch16
hole10.ThreadType = "None"
hole10.setExpression("Diameter", "Params.hole10_diameter")
hole10.DepthType = "Dimension"
hole10.setExpression("Depth", "Params.hole10_depth")
hole10.DrillPoint = "Angled"
hole10.DrillPointAngle = 118

# Sketch on YZ plane
sketch17 = body.newObject("Sketcher::SketchObject", "Sketch016")
sketch17.AttachmentSupport = (doc.getObject("YZ_Plane"), [""])
sketch17.MapMode = "FlatFace"
sketch17.AttachmentOffset = App.Placement(V(0, 0, -39.94), App.Rotation())
sketch17.addGeometry([
    Part.Circle(V(471.4, 3, 0), V(0, 0, 1), 1.6),  # 0
    Part.Circle(V(391.4, 3, 0), V(0, 0, 1), 1.6),  # 1
    Part.Circle(V(311.4, 3, 0), V(0, 0, 1), 1.6),  # 2
    Part.Circle(V(151.4, 3, 0), V(0, 0, 1), 1.6),  # 3
    Part.Circle(V(71.4, 3, 0), V(0, 0, 1), 1.6),  # 4
    Part.Circle(V(-8.6, 3, 0), V(0, 0, 1), 1.6),  # 5
], False)
sketch17.addConstraint([
    Sketcher.Constraint("Equal", 0, 1),
    Sketcher.Constraint("Equal", 1, 2),
    Sketcher.Constraint("Equal", 2, 3),
    Sketcher.Constraint("Equal", 3, 4),
    Sketcher.Constraint("Equal", 4, 5),
    Sketcher.Constraint("Horizontal", 0, 3, 1, 3),
    Sketcher.Constraint("Horizontal", 1, 3, 2, 3),
    Sketcher.Constraint("Horizontal", 2, 3, 3, 3),
    Sketcher.Constraint("Horizontal", 3, 3, 4, 3),
    Sketcher.Constraint("Horizontal", 4, 3, 5, 3),
    Sketcher.Constraint("Diameter", 0, Q("3.3 mm")),
    Sketcher.Constraint("DistanceY", -1, 1, 0, 3, Q("3 mm")),
    Sketcher.Constraint("DistanceX", 1, 3, 0, 3, Q("80 mm")),
    Sketcher.Constraint("DistanceX", 2, 3, 1, 3, Q("80 mm")),
    Sketcher.Constraint("DistanceX", 3, 3, 2, 3, Q("160 mm")),
    Sketcher.Constraint("DistanceX", 4, 3, 3, 3, Q("80 mm")),
    Sketcher.Constraint("DistanceX", 5, 3, 4, 3, Q("80 mm")),
    Sketcher.Constraint("DistanceX", -1, 1, 0, 3, Q("471.4166 mm")),
])
sketch17.setExpression("Constraints[10]", "Params.sketch17_diameter")
doc.recompute()
hole11 = body.newObject("PartDesign::Hole", "Hole010")
hole11.Profile = sketch17
hole11.ThreadType = "None"
hole11.setExpression("Diameter", "Params.hole11_diameter")
hole11.DepthType = "Dimension"
hole11.setExpression("Depth", "Params.hole11_depth")
hole11.DrillPoint = "Angled"
hole11.DrillPointAngle = 118
hole11.Reversed = True

# Sketch on XZ plane
sketch18 = body.newObject("Sketcher::SketchObject", "Sketch017")
sketch18.AttachmentSupport = (doc.getObject("XZ_Plane"), [""])
sketch18.MapMode = "FlatFace"
sketch18.AttachmentOffset = App.Placement(V(0, 0, -510), App.Rotation())
sketch18.addGeometry([
    Part.Circle(V(361.2, 3, 0), V(0, 0, 1), 1.6),  # 0
    Part.Circle(V(311.2, 3, 0), V(0, 0, 1), 1.6),  # 1
    Part.Circle(V(261.2, 3, 0), V(0, 0, 1), 1.6),  # 2
    Part.Circle(V(161.2, 3, 0), V(0, 0, 1), 1.6),  # 3
    Part.Circle(V(111.2, 3, 0), V(0, 0, 1), 1.6),  # 4
    Part.Circle(V(61.2, 3, 0), V(0, 0, 1), 1.6),  # 5
], False)
sketch18.addConstraint([
    Sketcher.Constraint("Equal", 0, 1),
    Sketcher.Constraint("Equal", 1, 2),
    Sketcher.Constraint("Equal", 2, 3),
    Sketcher.Constraint("Equal", 3, 4),
    Sketcher.Constraint("Equal", 4, 5),
    Sketcher.Constraint("Horizontal", 0, 3, 1, 3),
    Sketcher.Constraint("Horizontal", 1, 3, 2, 3),
    Sketcher.Constraint("Horizontal", 2, 3, 3, 3),
    Sketcher.Constraint("Horizontal", 3, 3, 4, 3),
    Sketcher.Constraint("Horizontal", 4, 3, 5, 3),
    Sketcher.Constraint("Diameter", 0, Q("3.3 mm")),
    Sketcher.Constraint("DistanceY", -1, 1, 0, 3, Q("3 mm")),
    Sketcher.Constraint("DistanceX", 1, 3, 0, 3, Q("50 mm")),
    Sketcher.Constraint("DistanceX", 2, 3, 1, 3, Q("50 mm")),
    Sketcher.Constraint("DistanceX", 3, 3, 2, 3, Q("100 mm")),
    Sketcher.Constraint("DistanceX", 4, 3, 3, 3, Q("50 mm")),
    Sketcher.Constraint("DistanceX", 5, 3, 4, 3, Q("50 mm")),
    Sketcher.Constraint("DistanceX", -1, 1, 0, 3, Q("361.179882 mm")),
])
sketch18.setExpression("Constraints[10]", "Params.sketch18_diameter")
doc.recompute()
hole12 = body.newObject("PartDesign::Hole", "Hole011")
hole12.Profile = sketch18
hole12.ThreadType = "None"
hole12.setExpression("Diameter", "Params.hole12_diameter")
hole12.DepthType = "Dimension"
hole12.setExpression("Depth", "Params.hole12_depth")
hole12.DrillPoint = "Angled"
hole12.DrillPointAngle = 118
hole12.Reversed = True

# Sketch on YZ plane
sketch19 = body.newObject("Sketcher::SketchObject", "Sketch018")
sketch19.AttachmentSupport = (doc.getObject("YZ_Plane"), [""])
sketch19.MapMode = "FlatFace"
sketch19.AttachmentOffset = App.Placement(V(0, 0, 710.06), App.Rotation())
sketch19.addGeometry([
    Part.Circle(V(-3.2, 3, 0), V(0, 0, 1), 1.6),  # 0
    Part.Circle(V(56.8, 3, 0), V(0, 0, 1), 1.6),  # 1
    Part.Circle(V(116.8, 3, 0), V(0, 0, 1), 1.6),  # 2
    Part.Circle(V(236.8, 3, 0), V(0, 0, 1), 1.6),  # 3
    Part.Circle(V(296.8, 3, 0), V(0, 0, 1), 1.6),  # 4
    Part.Circle(V(356.8, 3, 0), V(0, 0, 1), 1.6),  # 5
], False)
sketch19.addConstraint([
    Sketcher.Constraint("Equal", 0, 1),
    Sketcher.Constraint("Equal", 1, 2),
    Sketcher.Constraint("Equal", 2, 3),
    Sketcher.Constraint("Equal", 3, 4),
    Sketcher.Constraint("Equal", 4, 5),
    Sketcher.Constraint("Horizontal", 0, 3, 1, 3),
    Sketcher.Constraint("Horizontal", 1, 3, 2, 3),
    Sketcher.Constraint("Horizontal", 2, 3, 3, 3),
    Sketcher.Constraint("Horizontal", 3, 3, 4, 3),
    Sketcher.Constraint("Horizontal", 4, 3, 5, 3),
    Sketcher.Constraint("Diameter", 0, Q("3.3 mm")),
    Sketcher.Constraint("DistanceY", -1, 1, 0, 3, Q("3 mm")),
    Sketcher.Constraint("DistanceX", 0, 3, 1, 3, Q("60 mm")),
    Sketcher.Constraint("DistanceX", 1, 3, 2, 3, Q("60 mm")),
    Sketcher.Constraint("DistanceX", 2, 3, 3, 3, Q("120 mm")),
    Sketcher.Constraint("DistanceX", 3, 3, 4, 3, Q("60 mm")),
    Sketcher.Constraint("DistanceX", 4, 3, 5, 3, Q("60 mm")),
    Sketcher.Constraint("DistanceX", 0, 3, -1, 1, Q("3.2184 mm")),
])
sketch19.setExpression("Constraints[10]", "Params.sketch19_diameter")
doc.recompute()
hole13 = body.newObject("PartDesign::Hole", "Hole012")
hole13.Profile = sketch19
hole13.ThreadType = "None"
hole13.setExpression("Diameter", "Params.hole13_diameter")
hole13.DepthType = "Dimension"
hole13.setExpression("Depth", "Params.hole13_depth")
hole13.DrillPoint = "Angled"
hole13.DrillPointAngle = 118

# Sketch on XZ plane
sketch20 = body.newObject("Sketcher::SketchObject", "Sketch019")
sketch20.AttachmentSupport = (doc.getObject("XZ_Plane"), [""])
sketch20.MapMode = "FlatFace"
sketch20.AttachmentOffset = App.Placement(V(0, 0, -400), App.Rotation())
sketch20.addGeometry([
    Part.Circle(V(666.1, 3, 0), V(0, 0, 1), 1.6),
    Part.Circle(V(626.1, 3, 0), V(0, 0, 1), 1.6),
    Part.Circle(V(546.1, 3, 0), V(0, 0, 1), 1.6),
    Part.Circle(V(506.1, 3, 0), V(0, 0, 1), 1.6),
], False)
sketch20.addConstraint([
    Sketcher.Constraint("Equal", 0, 1),
    Sketcher.Constraint("Equal", 1, 2),
    Sketcher.Constraint("Equal", 2, 3),
    Sketcher.Constraint("Horizontal", 0, 3, 1, 3),
    Sketcher.Constraint("Horizontal", 1, 3, 2, 3),
    Sketcher.Constraint("Horizontal", 2, 3, 3, 3),
    Sketcher.Constraint("Diameter", 0, Q("3.3 mm")),
    Sketcher.Constraint("DistanceY", -1, 1, 0, 3, Q("3 mm")),
    Sketcher.Constraint("DistanceX", 1, 3, 0, 3, Q("40 mm")),
    Sketcher.Constraint("DistanceX", 2, 3, 1, 3, Q("80 mm")),
    Sketcher.Constraint("DistanceX", 3, 3, 2, 3, Q("40 mm")),
    Sketcher.Constraint("DistanceX", -1, 1, 0, 3, Q("666.061582 mm")),
])
sketch20.setExpression("Constraints[6]", "Params.sketch20_diameter")
doc.recompute()
hole14 = body.newObject("PartDesign::Hole", "Hole013")
hole14.Profile = sketch20
hole14.ThreadType = "None"
hole14.setExpression("Diameter", "Params.hole14_diameter")
hole14.DepthType = "Dimension"
hole14.setExpression("Depth", "Params.hole14_depth")
hole14.DrillPoint = "Angled"
hole14.DrillPointAngle = 118
hole14.Reversed = True

doc.recompute()
